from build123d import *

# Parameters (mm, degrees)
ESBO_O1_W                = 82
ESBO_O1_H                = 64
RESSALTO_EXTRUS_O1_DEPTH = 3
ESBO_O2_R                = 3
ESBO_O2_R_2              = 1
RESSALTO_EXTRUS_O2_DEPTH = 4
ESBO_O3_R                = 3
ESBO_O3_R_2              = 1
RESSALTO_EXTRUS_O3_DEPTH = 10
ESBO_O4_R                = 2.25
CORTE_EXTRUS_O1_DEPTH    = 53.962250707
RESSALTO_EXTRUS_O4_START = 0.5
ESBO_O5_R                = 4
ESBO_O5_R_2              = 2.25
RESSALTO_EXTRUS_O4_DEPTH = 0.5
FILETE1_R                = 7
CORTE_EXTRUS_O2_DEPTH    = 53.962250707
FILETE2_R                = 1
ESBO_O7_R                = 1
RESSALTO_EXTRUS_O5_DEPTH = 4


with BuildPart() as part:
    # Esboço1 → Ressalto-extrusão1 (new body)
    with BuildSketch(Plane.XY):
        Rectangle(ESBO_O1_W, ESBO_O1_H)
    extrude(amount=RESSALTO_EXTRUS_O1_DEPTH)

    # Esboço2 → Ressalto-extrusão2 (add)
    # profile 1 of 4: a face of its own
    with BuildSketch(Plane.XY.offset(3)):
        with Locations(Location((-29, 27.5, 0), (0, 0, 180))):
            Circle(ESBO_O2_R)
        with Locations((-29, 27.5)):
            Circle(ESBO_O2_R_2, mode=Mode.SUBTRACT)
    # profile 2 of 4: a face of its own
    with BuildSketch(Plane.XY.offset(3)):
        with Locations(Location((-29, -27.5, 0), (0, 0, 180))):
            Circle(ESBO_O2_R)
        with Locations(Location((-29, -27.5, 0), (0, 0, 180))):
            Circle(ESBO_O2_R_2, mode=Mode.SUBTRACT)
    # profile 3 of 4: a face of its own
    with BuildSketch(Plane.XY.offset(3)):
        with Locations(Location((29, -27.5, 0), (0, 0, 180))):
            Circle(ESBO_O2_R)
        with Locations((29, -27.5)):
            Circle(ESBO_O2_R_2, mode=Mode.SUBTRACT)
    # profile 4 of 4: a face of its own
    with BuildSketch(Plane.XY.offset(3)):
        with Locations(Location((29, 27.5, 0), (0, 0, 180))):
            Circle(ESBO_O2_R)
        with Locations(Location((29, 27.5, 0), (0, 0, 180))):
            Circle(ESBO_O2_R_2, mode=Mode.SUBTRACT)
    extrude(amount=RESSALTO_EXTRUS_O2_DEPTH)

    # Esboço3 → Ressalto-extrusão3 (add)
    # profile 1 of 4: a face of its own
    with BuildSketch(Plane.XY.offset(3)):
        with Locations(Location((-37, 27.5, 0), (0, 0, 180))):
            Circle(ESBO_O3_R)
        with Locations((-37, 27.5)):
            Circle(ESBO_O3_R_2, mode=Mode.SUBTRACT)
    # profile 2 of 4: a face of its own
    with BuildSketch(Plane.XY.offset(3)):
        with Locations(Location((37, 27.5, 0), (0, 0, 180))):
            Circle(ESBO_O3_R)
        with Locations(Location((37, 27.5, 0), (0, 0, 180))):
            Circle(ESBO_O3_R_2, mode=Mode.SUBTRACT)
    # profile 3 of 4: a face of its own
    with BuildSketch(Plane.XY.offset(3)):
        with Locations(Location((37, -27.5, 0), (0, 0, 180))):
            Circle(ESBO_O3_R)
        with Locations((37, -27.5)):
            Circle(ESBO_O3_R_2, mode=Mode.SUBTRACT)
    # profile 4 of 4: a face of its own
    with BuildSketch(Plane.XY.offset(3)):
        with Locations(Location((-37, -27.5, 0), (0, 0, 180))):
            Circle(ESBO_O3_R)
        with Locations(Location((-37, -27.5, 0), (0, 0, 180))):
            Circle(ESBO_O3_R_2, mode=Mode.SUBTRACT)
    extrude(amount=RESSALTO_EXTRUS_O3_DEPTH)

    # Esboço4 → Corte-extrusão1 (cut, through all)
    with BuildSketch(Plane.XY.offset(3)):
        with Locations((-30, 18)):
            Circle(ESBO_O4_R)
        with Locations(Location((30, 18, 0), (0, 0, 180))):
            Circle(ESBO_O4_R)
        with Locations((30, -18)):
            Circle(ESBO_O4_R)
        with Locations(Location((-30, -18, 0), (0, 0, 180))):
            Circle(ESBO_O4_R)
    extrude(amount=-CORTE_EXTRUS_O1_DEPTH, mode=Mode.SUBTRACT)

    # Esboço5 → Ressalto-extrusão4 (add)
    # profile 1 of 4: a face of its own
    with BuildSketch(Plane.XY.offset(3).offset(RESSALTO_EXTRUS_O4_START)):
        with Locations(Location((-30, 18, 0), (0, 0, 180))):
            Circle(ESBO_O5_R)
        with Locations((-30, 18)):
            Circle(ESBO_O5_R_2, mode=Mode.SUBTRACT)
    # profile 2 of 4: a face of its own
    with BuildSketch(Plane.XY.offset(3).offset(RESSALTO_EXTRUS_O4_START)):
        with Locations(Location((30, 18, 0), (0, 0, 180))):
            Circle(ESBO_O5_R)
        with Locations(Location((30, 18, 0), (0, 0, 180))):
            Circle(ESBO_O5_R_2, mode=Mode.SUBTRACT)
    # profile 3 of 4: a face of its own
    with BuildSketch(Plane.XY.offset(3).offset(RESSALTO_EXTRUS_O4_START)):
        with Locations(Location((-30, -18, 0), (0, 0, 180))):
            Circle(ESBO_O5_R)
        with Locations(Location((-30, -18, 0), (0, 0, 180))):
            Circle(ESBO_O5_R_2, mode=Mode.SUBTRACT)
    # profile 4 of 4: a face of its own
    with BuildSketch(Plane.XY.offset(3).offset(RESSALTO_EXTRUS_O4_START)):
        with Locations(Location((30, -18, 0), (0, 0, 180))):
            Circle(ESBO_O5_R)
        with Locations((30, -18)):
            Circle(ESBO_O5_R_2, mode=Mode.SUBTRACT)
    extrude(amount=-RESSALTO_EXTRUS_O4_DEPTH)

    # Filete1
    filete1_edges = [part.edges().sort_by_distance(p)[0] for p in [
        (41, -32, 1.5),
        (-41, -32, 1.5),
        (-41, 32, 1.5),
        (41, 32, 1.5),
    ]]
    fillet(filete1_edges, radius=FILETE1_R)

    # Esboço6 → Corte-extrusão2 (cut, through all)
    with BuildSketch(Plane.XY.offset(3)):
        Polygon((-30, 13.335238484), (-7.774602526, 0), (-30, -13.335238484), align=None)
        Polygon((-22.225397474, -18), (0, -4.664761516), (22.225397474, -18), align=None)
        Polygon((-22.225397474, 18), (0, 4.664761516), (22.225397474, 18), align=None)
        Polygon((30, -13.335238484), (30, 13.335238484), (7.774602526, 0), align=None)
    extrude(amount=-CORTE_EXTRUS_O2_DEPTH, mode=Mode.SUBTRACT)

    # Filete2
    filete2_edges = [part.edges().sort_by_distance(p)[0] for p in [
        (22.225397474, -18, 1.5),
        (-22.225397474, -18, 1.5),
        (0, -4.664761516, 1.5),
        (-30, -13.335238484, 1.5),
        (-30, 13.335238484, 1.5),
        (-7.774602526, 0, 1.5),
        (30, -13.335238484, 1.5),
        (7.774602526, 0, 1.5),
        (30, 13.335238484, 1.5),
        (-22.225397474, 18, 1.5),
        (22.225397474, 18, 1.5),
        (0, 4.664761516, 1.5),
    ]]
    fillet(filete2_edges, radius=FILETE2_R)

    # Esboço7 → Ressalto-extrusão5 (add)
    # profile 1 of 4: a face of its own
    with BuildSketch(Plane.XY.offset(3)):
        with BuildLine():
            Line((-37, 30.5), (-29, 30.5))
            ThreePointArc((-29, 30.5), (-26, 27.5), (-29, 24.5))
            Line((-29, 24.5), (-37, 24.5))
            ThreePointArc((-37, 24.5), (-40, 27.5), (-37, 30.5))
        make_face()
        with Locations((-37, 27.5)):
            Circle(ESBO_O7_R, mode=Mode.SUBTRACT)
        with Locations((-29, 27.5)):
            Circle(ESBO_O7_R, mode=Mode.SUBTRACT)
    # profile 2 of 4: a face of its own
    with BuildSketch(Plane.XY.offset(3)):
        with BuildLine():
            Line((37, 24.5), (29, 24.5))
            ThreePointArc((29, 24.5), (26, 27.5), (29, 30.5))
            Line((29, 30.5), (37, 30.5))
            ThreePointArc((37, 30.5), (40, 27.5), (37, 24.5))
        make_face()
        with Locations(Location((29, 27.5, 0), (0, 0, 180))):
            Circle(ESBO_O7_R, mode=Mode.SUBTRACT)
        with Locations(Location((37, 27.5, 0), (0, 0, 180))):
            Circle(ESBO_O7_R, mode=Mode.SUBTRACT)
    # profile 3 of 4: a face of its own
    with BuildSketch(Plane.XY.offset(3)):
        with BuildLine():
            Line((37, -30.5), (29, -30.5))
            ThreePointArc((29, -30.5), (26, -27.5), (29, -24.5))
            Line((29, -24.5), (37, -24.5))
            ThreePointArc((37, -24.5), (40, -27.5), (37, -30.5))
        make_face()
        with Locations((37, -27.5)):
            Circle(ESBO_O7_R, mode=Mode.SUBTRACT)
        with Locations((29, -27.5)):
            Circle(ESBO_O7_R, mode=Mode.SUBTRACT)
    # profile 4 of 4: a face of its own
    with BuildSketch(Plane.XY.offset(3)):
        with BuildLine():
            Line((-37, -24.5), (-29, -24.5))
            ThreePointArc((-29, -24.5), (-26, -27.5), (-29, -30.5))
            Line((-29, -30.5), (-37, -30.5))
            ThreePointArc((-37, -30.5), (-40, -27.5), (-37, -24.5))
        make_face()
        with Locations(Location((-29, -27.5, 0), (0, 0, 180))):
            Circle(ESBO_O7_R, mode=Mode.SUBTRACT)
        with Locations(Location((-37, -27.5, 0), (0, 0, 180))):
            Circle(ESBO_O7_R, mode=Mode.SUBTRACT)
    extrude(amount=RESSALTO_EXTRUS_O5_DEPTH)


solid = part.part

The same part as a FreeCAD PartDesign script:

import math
import FreeCAD as App
import Part
import Sketcher
from FreeCAD import Vector


def edges_at(feature, points):
    """Names of the edges that pass closest to the given points."""
    edges = feature.Shape.Edges
    near = lambda p: min(range(len(edges)), key=lambda i: edges[i].distToShape(Part.Vertex(*p))[0])
    return sorted({f"Edge{near(p) + 1}" for p in points})


def add_polygon(sketch, points):
    """Adds a closed chain of lines whose ends are joined by coincident constraints."""
    first, n = sketch.GeometryCount, len(points)
    for a, b in zip(points, points[1:] + points[:1]):
        sketch.addGeometry(Part.LineSegment(App.Vector(*a, 0), App.Vector(*b, 0)), False)
    for i in range(n):
        sketch.addConstraint(Sketcher.Constraint("Coincident", first + i, 2, first + (i + 1) % n, 1))

doc = App.newDocument("Part")
params = doc.addObject("Spreadsheet::Sheet", "Params")
for row, (alias, value) in enumerate([
    ("sketch1_width", "82 mm"),
    ("sketch1_height", "64 mm"),
    ("pad1_length", "3 mm"),
    ("sketch2_diameter", "6 mm"),
    ("sketch2_diameter2", "2 mm"),
    ("pad2_length", "4 mm"),
    ("sketch3_diameter", "6 mm"),
    ("sketch3_diameter2", "2 mm"),
    ("pad3_length", "10 mm"),
    ("sketch4_diameter", "4.5 mm"),
    ("sketch5_diameter", "8 mm"),
    ("sketch5_diameter2", "4.5 mm"),
    ("pad4_length", "0.5 mm"),
    ("fillet_radius", "7 mm"),
    ("fillet2_radius", "1 mm"),
    ("sketch7_diameter", "2 mm"),
    ("sketch7_radius", "3 mm"),
    ("sketch7_width", "8 mm"),
    ("pad5_length", "4 mm"),
], start=1):
    params.set(f"A{row}", alias)
    params.set(f"B{row}", "=" + value)
    params.setAlias(f"B{row}", alias)

body = doc.addObject("PartDesign::Body", "Body")

sketch1 = body.newObject("Sketcher::SketchObject", "Sketch")
sketch1.AttachmentSupport = (doc.getObject("XY_Plane"), [""])
sketch1.MapMode = "FlatFace"
add_polygon(sketch1, [(-41, 32), (-41, -32), (41, -32), (41, 32)])
sketch1.addConstraint(Sketcher.Constraint("Vertical", 0))
sketch1.addConstraint(Sketcher.Constraint("Horizontal", 1))
sketch1.addConstraint(Sketcher.Constraint("Vertical", 2))
sketch1.addConstraint(Sketcher.Constraint("Horizontal", 3))
sketch1.addConstraint(Sketcher.Constraint("Symmetric", 0, 2, 2, 2, -1, 1))
sketch1.addConstraint(Sketcher.Constraint("DistanceX", 1, 1, 1, 2, 82.0))
sketch1.addConstraint(Sketcher.Constraint("DistanceY", 0, 2, 0, 1, 64.0))
sketch1.setExpression("Constraints[9]", "Params.sketch1_width")
sketch1.setExpression("Constraints[10]", "Params.sketch1_height")
pad1 = body.newObject("PartDesign::Pad", "Pad")
pad1.Profile = sketch1
pad1.setExpression("Length", "Params.pad1_length")

sketch2 = body.newObject("Sketcher::SketchObject", "Sketch001")
sketch2.AttachmentSupport = (doc.getObject("XY_Plane"), [""])
sketch2.MapMode = "FlatFace"
sketch2.AttachmentOffset = App.Placement(Vector(0, 0, 3), App.Rotation())
sketch2.addGeometry(Part.Circle(Vector(-29, 27.5, 0), Vector(0, 0, 1), 3), False)
sketch2.addGeometry(Part.Circle(Vector(-29, 27.5, 0), Vector(0, 0, 1), 1), False)
sketch2.addGeometry(Part.Circle(Vector(-29, -27.5, 0), Vector(0, 0, 1), 3), False)
sketch2.addGeometry(Part.Circle(Vector(-29, -27.5, 0), Vector(0, 0, 1), 1), False)
sketch2.addGeometry(Part.Circle(Vector(29, -27.5, 0), Vector(0, 0, 1), 3), False)
sketch2.addGeometry(Part.Circle(Vector(29, -27.5, 0), Vector(0, 0, 1), 1), False)
sketch2.addGeometry(Part.Circle(Vector(29, 27.5, 0), Vector(0, 0, 1), 3), False)
sketch2.addGeometry(Part.Circle(Vector(29, 27.5, 0), Vector(0, 0, 1), 1), False)
sketch2.addConstraint(Sketcher.Constraint("Coincident", 1, 3, 0, 3))
sketch2.addConstraint(Sketcher.Constraint("Coincident", 3, 3, 2, 3))
sketch2.addConstraint(Sketcher.Constraint("Coincident", 5, 3, 4, 3))
sketch2.addConstraint(Sketcher.Constraint("Coincident", 7, 3, 6, 3))
sketch2.addConstraint(Sketcher.Constraint("Equal", 0, 2))
sketch2.addConstraint(Sketcher.Constraint("Equal", 1, 3))
sketch2.addConstraint(Sketcher.Constraint("Equal", 2, 4))
sketch2.addConstraint(Sketcher.Constraint("Equal", 3, 5))
sketch2.addConstraint(Sketcher.Constraint("Equal", 4, 6))
sketch2.addConstraint(Sketcher.Constraint("Equal", 5, 7))
sketch2.addConstraint(Sketcher.Constraint("Symmetric", 0, 3, 4, 3, -1, 1))
sketch2.addConstraint(Sketcher.Constraint("Symmetric", 2, 3, 6, 3, -1, 1))
sketch2.addConstraint(Sketcher.Constraint("Symmetric", 2, 3, 4, 3, -2))
sketch2.addConstraint(Sketcher.Constraint("Diameter", 0, 6.0))
sketch2.addConstraint(Sketcher.Constraint("Diameter", 1, 2.0))
sketch2.addConstraint(Sketcher.Constraint("DistanceX", 0, 3, -1, 1, 29.0))
sketch2.addConstraint(Sketcher.Constraint("DistanceY", 2, 3, 0, 3, 55.0))
sketch2.setExpression("Constraints[13]", "Params.sketch2_diameter")
sketch2.setExpression("Constraints[14]", "Params.sketch2_diameter2")
pad2 = body.newObject("PartDesign::Pad", "Pad001")
pad2.Profile = sketch2
pad2.setExpression("Length", "Params.pad2_length")

sketch3 = body.newObject("Sketcher::SketchObject", "Sketch002")
sketch3.AttachmentSupport = (doc.getObject("XY_Plane"), [""])
sketch3.MapMode = "FlatFace"
sketch3.AttachmentOffset = App.Placement(Vector(0, 0, 3), App.Rotation())
sketch3.addGeometry(Part.Circle(Vector(-37, 27.5, 0), Vector(0, 0, 1), 3), False)
sketch3.addGeometry(Part.Circle(Vector(-37, 27.5, 0), Vector(0, 0, 1), 1), False)
sketch3.addGeometry(Part.Circle(Vector(37, 27.5, 0), Vector(0, 0, 1), 3), False)
sketch3.addGeometry(Part.Circle(Vector(37, 27.5, 0), Vector(0, 0, 1), 1), False)
sketch3.addGeometry(Part.Circle(Vector(37, -27.5, 0), Vector(0, 0, 1), 3), False)
sketch3.addGeometry(Part.Circle(Vector(37, -27.5, 0), Vector(0, 0, 1), 1), False)
sketch3.addGeometry(Part.Circle(Vector(-37, -27.5, 0), Vector(0, 0, 1), 3), False)
sketch3.addGeometry(Part.Circle(Vector(-37, -27.5, 0), Vector(0, 0, 1), 1), False)
sketch3.addConstraint(Sketcher.Constraint("Coincident", 1, 3, 0, 3))
sketch3.addConstraint(Sketcher.Constraint("Coincident", 3, 3, 2, 3))
sketch3.addConstraint(Sketcher.Constraint("Coincident", 5, 3, 4, 3))
sketch3.addConstraint(Sketcher.Constraint("Coincident", 7, 3, 6, 3))
sketch3.addConstraint(Sketcher.Constraint("Equal", 0, 2))
sketch3.addConstraint(Sketcher.Constraint("Equal", 1, 3))
sketch3.addConstraint(Sketcher.Constraint("Equal", 2, 4))
sketch3.addConstraint(Sketcher.Constraint("Equal", 3, 5))
sketch3.addConstraint(Sketcher.Constraint("Equal", 4, 6))
sketch3.addConstraint(Sketcher.Constraint("Equal", 5, 7))
sketch3.addConstraint(Sketcher.Constraint("Symmetric", 0, 3, 4, 3, -1, 1))
sketch3.addConstraint(Sketcher.Constraint("Symmetric", 2, 3, 6, 3, -1, 1))
sketch3.addConstraint(Sketcher.Constraint("Symmetric", 0, 3, 2, 3, -2))
sketch3.addConstraint(Sketcher.Constraint("Diameter", 0, 6.0))
sketch3.addConstraint(Sketcher.Constraint("Diameter", 1, 2.0))
sketch3.addConstraint(Sketcher.Constraint("DistanceX", 0, 3, -1, 1, 37.0))
sketch3.addConstraint(Sketcher.Constraint("DistanceY", 4, 3, 2, 3, 55.0))
sketch3.setExpression("Constraints[13]", "Params.sketch3_diameter")
sketch3.setExpression("Constraints[14]", "Params.sketch3_diameter2")
pad3 = body.newObject("PartDesign::Pad", "Pad002")
pad3.Profile = sketch3
pad3.setExpression("Length", "Params.pad3_length")

sketch4 = body.newObject("Sketcher::SketchObject", "Sketch003")
sketch4.AttachmentSupport = (doc.getObject("XY_Plane"), [""])
sketch4.MapMode = "FlatFace"
sketch4.AttachmentOffset = App.Placement(Vector(0, 0, 3), App.Rotation())
sketch4.addGeometry(Part.Circle(Vector(-30, 18, 0), Vector(0, 0, 1), 2.2), False)
sketch4.addGeometry(Part.Circle(Vector(30, 18, 0), Vector(0, 0, 1), 2.2), False)
sketch4.addGeometry(Part.Circle(Vector(30, -18, 0), Vector(0, 0, 1), 2.2), False)
sketch4.addGeometry(Part.Circle(Vector(-30, -18, 0), Vector(0, 0, 1), 2.2), False)
sketch4.addConstraint(Sketcher.Constraint("Equal", 0, 1))
sketch4.addConstraint(Sketcher.Constraint("Equal", 1, 2))
sketch4.addConstraint(Sketcher.Constraint("Equal", 2, 3))
sketch4.addConstraint(Sketcher.Constraint("Symmetric", 0, 3, 2, 3, -1, 1))
sketch4.addConstraint(Sketcher.Constraint("Symmetric", 1, 3, 3, 3, -1, 1))
sketch4.addConstraint(Sketcher.Constraint("Symmetric", 0, 3, 1, 3, -2))
sketch4.addConstraint(Sketcher.Constraint("Diameter", 0, 4.5))
sketch4.addConstraint(Sketcher.Constraint("DistanceX", 0, 3, -1, 1, 30.0))
sketch4.addConstraint(Sketcher.Constraint("DistanceY", -1, 1, 0, 3, 18.0))
sketch4.setExpression("Constraints[6]", "Params.sketch4_diameter")
pocket1 = body.newObject("PartDesign::Pocket", "Pocket")
pocket1.Profile = sketch4
pocket1.Type = "ThroughAll"

sketch5 = body.newObject("Sketcher::SketchObject", "Sketch004")
sketch5.AttachmentSupport = (doc.getObject("XY_Plane"), [""])
sketch5.MapMode = "FlatFace"
sketch5.AttachmentOffset = App.Placement(Vector(0, 0, 3.5), App.Rotation())
sketch5.addGeometry(Part.Circle(Vector(-30, 18, 0), Vector(0, 0, 1), 4), False)
sketch5.addGeometry(Part.Circle(Vector(-30, 18, 0), Vector(0, 0, 1), 2.2), False)
sketch5.addGeometry(Part.Circle(Vector(30, 18, 0), Vector(0, 0, 1), 4), False)
sketch5.addGeometry(Part.Circle(Vector(30, 18, 0), Vector(0, 0, 1), 2.2), False)
sketch5.addGeometry(Part.Circle(Vector(-30, -18, 0), Vector(0, 0, 1), 4), False)
sketch5.addGeometry(Part.Circle(Vector(-30, -18, 0), Vector(0, 0, 1), 2.2), False)
sketch5.addGeometry(Part.Circle(Vector(30, -18, 0), Vector(0, 0, 1), 4), False)
sketch5.addGeometry(Part.Circle(Vector(30, -18, 0), Vector(0, 0, 1), 2.2), False)
sketch5.addConstraint(Sketcher.Constraint("Coincident", 1, 3, 0, 3))
sketch5.addConstraint(Sketcher.Constraint("Coincident", 3, 3, 2, 3))
sketch5.addConstraint(Sketcher.Constraint("Coincident", 5, 3, 4, 3))
sketch5.addConstraint(Sketcher.Constraint("Coincident", 7, 3, 6, 3))
sketch5.addConstraint(Sketcher.Constraint("Equal", 0, 2))
sketch5.addConstraint(Sketcher.Constraint("Equal", 1, 3))
sketch5.addConstraint(Sketcher.Constraint("Equal", 2, 4))
sketch5.addConstraint(Sketcher.Constraint("Equal", 3, 5))
sketch5.addConstraint(Sketcher.Constraint("Equal", 4, 6))
sketch5.addConstraint(Sketcher.Constraint("Equal", 5, 7))
sketch5.addConstraint(Sketcher.Constraint("Symmetric", 2, 3, 4, 3, -1, 1))
sketch5.addConstraint(Sketcher.Constraint("Symmetric", 0, 3, 6, 3, -1, 1))
sketch5.addConstraint(Sketcher.Constraint("Symmetric", 0, 3, 2, 3, -2))
sketch5.addConstraint(Sketcher.Constraint("Diameter", 0, 8.0))
sketch5.addConstraint(Sketcher.Constraint("Diameter", 1, 4.5))
sketch5.addConstraint(Sketcher.Constraint("DistanceX", 0, 3, -1, 1, 30.0))
sketch5.addConstraint(Sketcher.Constraint("DistanceY", -1, 1, 0, 3, 18.0))
sketch5.setExpression("Constraints[13]", "Params.sketch5_diameter")
sketch5.setExpression("Constraints[14]", "Params.sketch5_diameter2")
pad4 = body.newObject("PartDesign::Pad", "Pad003")
pad4.Profile = sketch5
pad4.setExpression("Length", "Params.pad4_length")
pad4.Reversed = True
doc.recompute()

fillet = body.newObject("PartDesign::Fillet", "Fillet")
fillet.Base = (pad4, edges_at(pad4, [
    (41, -32, 1.5),
    (-41, -32, 1.5),
    (-41, 32, 1.5),
    (41, 32, 1.5),
]))
fillet.setExpression("Radius", "Params.fillet_radius")

sketch6 = body.newObject("Sketcher::SketchObject", "Sketch005")
sketch6.AttachmentSupport = (doc.getObject("XY_Plane"), [""])
sketch6.MapMode = "FlatFace"
sketch6.AttachmentOffset = App.Placement(Vector(0, 0, 3), App.Rotation())
add_polygon(sketch6, [(-8, 0), (-30, 13), (-30, -13)])
add_polygon(sketch6, [(0, -5), (-22, -18), (22, -18)])
add_polygon(sketch6, [(-22, 18), (0, 5), (22, 18)])
add_polygon(sketch6, [(30, -13), (30, 13), (8, 0)])
sketch6.addConstraint(Sketcher.Constraint("Vertical", 1))
sketch6.addConstraint(Sketcher.Constraint("Horizontal", 4))
sketch6.addConstraint(Sketcher.Constraint("Horizontal", 8))
sketch6.addConstraint(Sketcher.Constraint("Vertical", 9))
sketch6.addConstraint(Sketcher.Constraint("Symmetric", 5, 2, 6, 2, -1, 1))
sketch6.addConstraint(Sketcher.Constraint("Symmetric", 3, 2, 7, 2, -1, 1))
sketch6.addConstraint(Sketcher.Constraint("Symmetric", 1, 2, 9, 2, -1, 1))
sketch6.addConstraint(Sketcher.Constraint("Symmetric", 2, 2, 10, 2, -1, 1))
sketch6.addConstraint(Sketcher.Constraint("PointOnObject", 2, 2, -1))
sketch6.addConstraint(Sketcher.Constraint("PointOnObject", 5, 2, -2))
sketch6.addConstraint(Sketcher.Constraint("Parallel", 2, 3))
sketch6.addConstraint(Sketcher.Constraint("Parallel", 0, 5))
sketch6.addConstraint(Sketcher.Constraint("Parallel", 5, 6))
sketch6.addConstraint(Sketcher.Constraint("Parallel", 6, 11))
sketch6.addConstraint(Sketcher.Constraint("Horizontal", 0, 2, 9, 2))
sketch6.addConstraint(Sketcher.Constraint("Equal", 2, 3))
sketch6.addConstraint(Sketcher.Constraint("DistanceX", 0, 2, -1, 1, 30.0))
sketch6.addConstraint(Sketcher.Constraint("DistanceY", 3, 2, -1, 1, 18.0))
sketch6.addConstraint(Sketcher.Constraint("DistanceX", 4, 1, 4, 2, 44.450795))
sketch6.addConstraint(Sketcher.Constraint("DistanceY", 1, 2, 1, 1, 26.670477))
pocket2 = body.newObject("PartDesign::Pocket", "Pocket001")
pocket2.Profile = sketch6
pocket2.Type = "ThroughAll"
doc.recompute()

fillet2 = body.newObject("PartDesign::Fillet", "Fillet001")
fillet2.Base = (pocket2, edges_at(pocket2, [
    (22.225, -18, 1.5),
    (-22.225, -18, 1.5),
    (0, -4.665, 1.5),
    (-30, -13.335, 1.5),
    (-30, 13.335, 1.5),
    (-7.775, 0, 1.5),
    (30, -13.335, 1.5),
    (7.775, 0, 1.5),
    (30, 13.335, 1.5),
    (-22.225, 18, 1.5),
    (22.225, 18, 1.5),
    (0, 4.665, 1.5),
]))
fillet2.setExpression("Radius", "Params.fillet2_radius")

sketch7 = body.newObject("Sketcher::SketchObject", "Sketch006")
sketch7.AttachmentSupport = (doc.getObject("XY_Plane"), [""])
sketch7.MapMode = "FlatFace"
sketch7.AttachmentOffset = App.Placement(Vector(0, 0, 3), App.Rotation())
sketch7.addGeometry(Part.LineSegment(Vector(-29, 30.5, 0), Vector(-37, 30.5, 0)), False)
sketch7.addGeometry(Part.ArcOfCircle(Part.Circle(Vector(-37, 27.5, 0), Vector(0, 0, 1), 3), math.radians(90), math.radians(270)), False)
sketch7.addGeometry(Part.LineSegment(Vector(-37, 24.5, 0), Vector(-29, 24.5, 0)), False)
sketch7.addGeometry(Part.ArcOfCircle(Part.Circle(Vector(-29, 27.5, 0), Vector(0, 0, 1), 3), math.radians(-90), math.radians(90)), False)
sketch7.addGeometry(Part.Circle(Vector(-29, 27.5, 0), Vector(0, 0, 1), 1), False)
sketch7.addGeometry(Part.Circle(Vector(-37, 27.5, 0), Vector(0, 0, 1), 1), False)
sketch7.addGeometry(Part.LineSegment(Vector(29, 24.5, 0), Vector(37, 24.5, 0)), False)
sketch7.addGeometry(Part.ArcOfCircle(Part.Circle(Vector(37, 27.5, 0), Vector(0, 0, 1), 3), math.radians(-90), math.radians(90)), False)
sketch7.addGeometry(Part.LineSegment(Vector(37, 30.5, 0), Vector(29, 30.5, 0)), False)
sketch7.addGeometry(Part.ArcOfCircle(Part.Circle(Vector(29, 27.5, 0), Vector(0, 0, 1), 3), math.radians(90), math.radians(270)), False)
sketch7.addGeometry(Part.Circle(Vector(37, 27.5, 0), Vector(0, 0, 1), 1), False)
sketch7.addGeometry(Part.Circle(Vector(29, 27.5, 0), Vector(0, 0, 1), 1), False)
sketch7.addGeometry(Part.LineSegment(Vector(29, -30.5, 0), Vector(37, -30.5, 0)), False)
sketch7.addGeometry(Part.ArcOfCircle(Part.Circle(Vector(37, -27.5, 0), Vector(0, 0, 1), 3), math.radians(-90), math.radians(90)), False)
sketch7.addGeometry(Part.LineSegment(Vector(37, -24.5, 0), Vector(29, -24.5, 0)), False)
sketch7.addGeometry(Part.ArcOfCircle(Part.Circle(Vector(29, -27.5, 0), Vector(0, 0, 1), 3), math.radians(90), math.radians(270)), False)
sketch7.addGeometry(Part.Circle(Vector(37, -27.5, 0), Vector(0, 0, 1), 1), False)
sketch7.addGeometry(Part.Circle(Vector(29, -27.5, 0), Vector(0, 0, 1), 1), False)
sketch7.addGeometry(Part.LineSegment(Vector(-29, -24.5, 0), Vector(-37, -24.5, 0)), False)
sketch7.addGeometry(Part.ArcOfCircle(Part.Circle(Vector(-37, -27.5, 0), Vector(0, 0, 1), 3), math.radians(90), math.radians(270)), False)
sketch7.addGeometry(Part.LineSegment(Vector(-37, -30.5, 0), Vector(-29, -30.5, 0)), False)
sketch7.addGeometry(Part.ArcOfCircle(Part.Circle(Vector(-29, -27.5, 0), Vector(0, 0, 1), 3), math.radians(-90), math.radians(90)), False)
sketch7.addGeometry(Part.Circle(Vector(-29, -27.5, 0), Vector(0, 0, 1), 1), False)
sketch7.addGeometry(Part.Circle(Vector(-37, -27.5, 0), Vector(0, 0, 1), 1), False)
sketch7.addConstraint(Sketcher.Constraint("Tangent", 0, 2, 1, 1))
sketch7.addConstraint(Sketcher.Constraint("Tangent", 1, 2, 2, 1))
sketch7.addConstraint(Sketcher.Constraint("Tangent", 2, 2, 3, 1))
sketch7.addConstraint(Sketcher.Constraint("Tangent", 3, 2, 0, 1))
sketch7.addConstraint(Sketcher.Constraint("Tangent", 6, 2, 7, 1))
sketch7.addConstraint(Sketcher.Constraint("Tangent", 7, 2, 8, 1))
sketch7.addConstraint(Sketcher.Constraint("Tangent", 8, 2, 9, 1))
sketch7.addConstraint(Sketcher.Constraint("Tangent", 9, 2, 6, 1))
sketch7.addConstraint(Sketcher.Constraint("Tangent", 12, 2, 13, 1))
sketch7.addConstraint(Sketcher.Constraint("Tangent", 13, 2, 14, 1))
sketch7.addConstraint(Sketcher.Constraint("Tangent", 14, 2, 15, 1))
sketch7.addConstraint(Sketcher.Constraint("Tangent", 15, 2, 12, 1))
sketch7.addConstraint(Sketcher.Constraint("Tangent", 18, 2, 19, 1))
sketch7.addConstraint(Sketcher.Constraint("Tangent", 19, 2, 20, 1))
sketch7.addConstraint(Sketcher.Constraint("Tangent", 20, 2, 21, 1))
sketch7.addConstraint(Sketcher.Constraint("Tangent", 21, 2, 18, 1))
sketch7.addConstraint(Sketcher.Constraint("Horizontal", 0))
sketch7.addConstraint(Sketcher.Constraint("Horizontal", 2))
sketch7.addConstraint(Sketcher.Constraint("Horizontal", 6))
sketch7.addConstraint(Sketcher.Constraint("Horizontal", 8))
sketch7.addConstraint(Sketcher.Constraint("Horizontal", 12))
sketch7.addConstraint(Sketcher.Constraint("Horizontal", 14))
sketch7.addConstraint(Sketcher.Constraint("Horizontal", 18))
sketch7.addConstraint(Sketcher.Constraint("Horizontal", 20))
sketch7.addConstraint(Sketcher.Constraint("Coincident", 4, 3, 3, 3))
sketch7.addConstraint(Sketcher.Constraint("Coincident", 5, 3, 1, 3))
sketch7.addConstraint(Sketcher.Constraint("Coincident", 10, 3, 7, 3))
sketch7.addConstraint(Sketcher.Constraint("Coincident", 11, 3, 9, 3))
sketch7.addConstraint(Sketcher.Constraint("Coincident", 16, 3, 13, 3))
sketch7.addConstraint(Sketcher.Constraint("Coincident", 17, 3, 15, 3))
sketch7.addConstraint(Sketcher.Constraint("Coincident", 22, 3, 21, 3))
sketch7.addConstraint(Sketcher.Constraint("Coincident", 23, 3, 19, 3))
sketch7.addConstraint(Sketcher.Constraint("Equal", 4, 5))
sketch7.addConstraint(Sketcher.Constraint("Equal", 3, 7))
sketch7.addConstraint(Sketcher.Constraint("Equal", 5, 10))
sketch7.addConstraint(Sketcher.Constraint("Equal", 10, 11))
sketch7.addConstraint(Sketcher.Constraint("Equal", 9, 13))
sketch7.addConstraint(Sketcher.Constraint("Equal", 11, 16))
sketch7.addConstraint(Sketcher.Constraint("Equal", 16, 17))
sketch7.addConstraint(Sketcher.Constraint("Equal", 15, 19))
sketch7.addConstraint(Sketcher.Constraint("Equal", 17, 22))
sketch7.addConstraint(Sketcher.Constraint("Equal", 22, 23))
sketch7.addConstraint(Sketcher.Constraint("Symmetric", 1, 3, 13, 3, -1, 1))
sketch7.addConstraint(Sketcher.Constraint("Symmetric", 7, 3, 19, 3, -1, 1))
sketch7.addConstraint(Sketcher.Constraint("Symmetric", 1, 3, 7, 3, -2))
sketch7.addConstraint(Sketcher.Constraint("Vertical", 11, 3, 15, 3))
sketch7.addConstraint(Sketcher.Constraint("Vertical", 4, 3, 21, 3))
sketch7.addConstraint(Sketcher.Constraint("Equal", 2, 6))
sketch7.addConstraint(Sketcher.Constraint("Diameter", 4, 2.0))
sketch7.addConstraint(Sketcher.Constraint("Radius", 1, 3.0))
sketch7.addConstraint(Sketcher.Constraint("DistanceX", 0, 2, 0, 1, 8.0))
sketch7.addConstraint(Sketcher.Constraint("DistanceX", 1, 3, -1, 1, 37.0))
sketch7.addConstraint(Sketcher.Constraint("DistanceY", 13, 3, 7, 3, 55.0))
sketch7.setExpression("Constraints[48]", "Params.sketch7_diameter")
sketch7.setExpression("Constraints[49]", "Params.sketch7_radius")
sketch7.setExpression("Constraints[50]", "Params.sketch7_width")
pad5 = body.newObject("PartDesign::Pad", "Pad004")
pad5.Profile = sketch7
pad5.setExpression("Length", "Params.pad5_length")

doc.recompute()
